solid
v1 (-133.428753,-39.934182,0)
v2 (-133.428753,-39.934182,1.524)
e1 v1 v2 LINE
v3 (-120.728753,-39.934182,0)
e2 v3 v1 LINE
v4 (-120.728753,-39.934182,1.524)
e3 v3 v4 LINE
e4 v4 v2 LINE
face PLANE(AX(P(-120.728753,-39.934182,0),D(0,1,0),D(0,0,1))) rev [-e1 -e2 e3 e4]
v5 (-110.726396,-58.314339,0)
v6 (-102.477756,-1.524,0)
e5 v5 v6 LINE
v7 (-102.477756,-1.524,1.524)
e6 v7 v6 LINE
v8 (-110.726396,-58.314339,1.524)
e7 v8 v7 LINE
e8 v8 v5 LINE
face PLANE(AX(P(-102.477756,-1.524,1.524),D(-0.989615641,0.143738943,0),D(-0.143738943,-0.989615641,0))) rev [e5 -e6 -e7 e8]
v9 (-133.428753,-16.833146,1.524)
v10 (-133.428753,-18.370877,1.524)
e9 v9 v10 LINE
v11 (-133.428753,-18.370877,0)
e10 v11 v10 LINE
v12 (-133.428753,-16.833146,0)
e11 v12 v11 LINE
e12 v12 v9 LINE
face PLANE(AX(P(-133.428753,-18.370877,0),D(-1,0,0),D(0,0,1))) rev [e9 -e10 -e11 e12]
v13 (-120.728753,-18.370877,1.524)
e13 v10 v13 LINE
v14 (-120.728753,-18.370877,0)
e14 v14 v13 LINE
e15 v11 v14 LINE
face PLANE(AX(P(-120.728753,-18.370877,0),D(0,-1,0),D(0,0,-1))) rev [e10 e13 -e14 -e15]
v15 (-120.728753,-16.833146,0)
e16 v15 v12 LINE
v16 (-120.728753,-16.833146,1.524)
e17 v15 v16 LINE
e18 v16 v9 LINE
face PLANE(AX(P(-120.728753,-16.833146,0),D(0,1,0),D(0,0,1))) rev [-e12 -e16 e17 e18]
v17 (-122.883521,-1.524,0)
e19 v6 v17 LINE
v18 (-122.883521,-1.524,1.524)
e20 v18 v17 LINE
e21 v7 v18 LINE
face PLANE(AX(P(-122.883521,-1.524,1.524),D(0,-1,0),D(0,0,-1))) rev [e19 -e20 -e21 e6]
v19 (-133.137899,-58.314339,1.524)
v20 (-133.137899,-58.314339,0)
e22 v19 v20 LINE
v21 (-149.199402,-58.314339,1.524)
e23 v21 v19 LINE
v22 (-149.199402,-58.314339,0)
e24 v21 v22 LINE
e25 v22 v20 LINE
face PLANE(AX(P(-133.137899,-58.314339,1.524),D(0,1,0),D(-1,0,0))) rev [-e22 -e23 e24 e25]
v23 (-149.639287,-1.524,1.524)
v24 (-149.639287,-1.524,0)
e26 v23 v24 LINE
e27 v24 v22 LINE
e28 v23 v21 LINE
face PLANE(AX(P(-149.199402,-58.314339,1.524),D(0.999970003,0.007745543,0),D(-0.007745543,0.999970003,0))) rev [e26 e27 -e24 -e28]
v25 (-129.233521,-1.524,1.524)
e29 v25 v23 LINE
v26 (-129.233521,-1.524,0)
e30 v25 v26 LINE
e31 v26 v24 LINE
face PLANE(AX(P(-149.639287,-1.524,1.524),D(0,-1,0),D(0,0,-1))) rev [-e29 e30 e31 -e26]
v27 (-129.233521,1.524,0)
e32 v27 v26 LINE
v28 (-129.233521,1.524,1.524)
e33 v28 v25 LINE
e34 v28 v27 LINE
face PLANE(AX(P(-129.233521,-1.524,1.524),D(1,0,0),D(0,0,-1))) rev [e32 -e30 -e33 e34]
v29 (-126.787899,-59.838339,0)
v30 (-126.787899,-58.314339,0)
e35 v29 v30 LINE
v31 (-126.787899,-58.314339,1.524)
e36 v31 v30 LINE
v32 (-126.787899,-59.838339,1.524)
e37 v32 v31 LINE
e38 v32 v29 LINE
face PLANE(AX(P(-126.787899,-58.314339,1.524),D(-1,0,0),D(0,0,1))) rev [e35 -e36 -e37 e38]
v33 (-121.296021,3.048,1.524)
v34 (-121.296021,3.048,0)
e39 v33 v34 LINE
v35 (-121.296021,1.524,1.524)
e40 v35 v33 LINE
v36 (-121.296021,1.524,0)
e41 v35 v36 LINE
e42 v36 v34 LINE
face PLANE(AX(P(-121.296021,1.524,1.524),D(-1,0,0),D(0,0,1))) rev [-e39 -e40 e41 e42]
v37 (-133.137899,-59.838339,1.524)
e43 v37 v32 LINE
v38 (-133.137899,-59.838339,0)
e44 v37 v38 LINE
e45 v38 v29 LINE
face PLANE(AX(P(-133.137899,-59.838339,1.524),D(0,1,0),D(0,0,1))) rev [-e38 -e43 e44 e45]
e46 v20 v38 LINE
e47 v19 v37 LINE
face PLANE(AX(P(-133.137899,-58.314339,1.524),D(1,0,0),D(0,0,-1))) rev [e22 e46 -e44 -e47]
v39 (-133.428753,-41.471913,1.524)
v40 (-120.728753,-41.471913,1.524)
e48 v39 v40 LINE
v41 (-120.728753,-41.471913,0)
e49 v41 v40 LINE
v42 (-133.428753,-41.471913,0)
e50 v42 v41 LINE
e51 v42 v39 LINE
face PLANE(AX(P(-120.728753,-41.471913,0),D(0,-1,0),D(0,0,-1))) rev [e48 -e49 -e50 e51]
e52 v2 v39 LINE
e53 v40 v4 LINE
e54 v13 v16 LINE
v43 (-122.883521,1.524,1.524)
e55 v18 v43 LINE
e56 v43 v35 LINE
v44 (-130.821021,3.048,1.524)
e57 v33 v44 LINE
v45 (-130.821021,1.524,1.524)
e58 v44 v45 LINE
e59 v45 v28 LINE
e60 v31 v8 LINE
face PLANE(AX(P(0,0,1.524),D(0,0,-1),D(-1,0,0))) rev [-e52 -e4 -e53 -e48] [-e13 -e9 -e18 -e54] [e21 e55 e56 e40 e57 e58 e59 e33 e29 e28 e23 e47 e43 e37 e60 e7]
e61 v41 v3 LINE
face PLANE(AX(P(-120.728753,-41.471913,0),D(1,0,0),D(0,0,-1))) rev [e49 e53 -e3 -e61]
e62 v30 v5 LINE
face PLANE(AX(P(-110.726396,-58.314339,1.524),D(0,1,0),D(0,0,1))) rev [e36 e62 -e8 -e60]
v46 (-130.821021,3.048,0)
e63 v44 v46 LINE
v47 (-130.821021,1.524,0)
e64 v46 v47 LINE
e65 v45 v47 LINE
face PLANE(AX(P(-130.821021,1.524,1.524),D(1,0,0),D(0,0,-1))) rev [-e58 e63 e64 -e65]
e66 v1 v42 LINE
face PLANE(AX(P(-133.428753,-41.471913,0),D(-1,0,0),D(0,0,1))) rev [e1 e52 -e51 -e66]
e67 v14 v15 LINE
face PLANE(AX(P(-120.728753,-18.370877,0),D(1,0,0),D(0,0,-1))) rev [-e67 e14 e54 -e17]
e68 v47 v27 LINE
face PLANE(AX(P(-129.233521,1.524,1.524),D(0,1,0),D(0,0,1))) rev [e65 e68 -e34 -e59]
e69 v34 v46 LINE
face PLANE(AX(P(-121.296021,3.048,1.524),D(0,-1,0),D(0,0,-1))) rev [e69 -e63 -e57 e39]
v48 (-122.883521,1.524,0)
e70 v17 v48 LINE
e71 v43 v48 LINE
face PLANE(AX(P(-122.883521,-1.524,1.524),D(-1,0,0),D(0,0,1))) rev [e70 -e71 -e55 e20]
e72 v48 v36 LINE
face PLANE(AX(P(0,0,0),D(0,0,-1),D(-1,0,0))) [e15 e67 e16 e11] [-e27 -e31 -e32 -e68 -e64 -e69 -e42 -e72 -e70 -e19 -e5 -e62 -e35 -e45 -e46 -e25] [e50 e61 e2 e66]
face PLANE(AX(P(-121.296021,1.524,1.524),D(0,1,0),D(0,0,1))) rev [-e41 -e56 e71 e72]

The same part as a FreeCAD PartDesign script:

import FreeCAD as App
import Part
import Sketcher
Q = App.Units.Quantity


def add_polygon(sketch, points):
    """Adds a closed chain of lines whose ends are joined by coincident constraints."""
    first, n = sketch.GeometryCount, len(points)
    for a, b in zip(points, points[1:] + points[:1]):
        sketch.addGeometry(Part.LineSegment(App.Vector(*a, 0), App.Vector(*b, 0)), False)
    for i in range(n):
        sketch.addConstraint(Sketcher.Constraint("Coincident", first + i, 2, first + (i + 1) % n, 1))

doc = App.newDocument("Part")
params = doc.addObject("Spreadsheet::Sheet", "Params")
for row, (alias, value) in enumerate([
    ("sketch1_width", "0.25 in"),
    ("sketch1_height", "0.12 in"),
    ("sketch1_height2", "0.06 in"),
    ("sketch1_width2", "0.0625 in"),
    ("sketch1_width3", "0.375 in"),
    ("pad1_length", "0.06 in"),
    ("sketch2_width", "0.5 in"),
    ("pocket1_length", "0.06 in"),
], start=1):
    params.set(f"A{row}", alias)
    params.set(f"B{row}", "=" + value)
    params.setAlias(f"B{row}", alias)

body = doc.addObject("PartDesign::Body", "Body")

sketch1 = body.newObject("Sketcher::SketchObject", "Sketch")
sketch1.AttachmentSupport = (doc.getObject("XY_Plane"), [""])
sketch1.MapMode = "FlatFace"
add_polygon(sketch1, [(-110.7, -58.3), (-102.5, -1.5), (-122.9, -1.5), (-122.9, 1.5), (-121.3, 1.5), (-121.3, 3), (-130.8, 3), (-130.8, 1.5), (-129.2, 1.5), (-129.2, -1.5), (-149.6, -1.5), (-149.2, -58.3), (-133.1, -58.3), (-133.1, -59.8), (-126.8, -59.8), (-126.8, -58.3)])
sketch1.addConstraint([
    Sketcher.Constraint("Horizontal", 1),
    Sketcher.Constraint("Vertical", 2),
    Sketcher.Constraint("Horizontal", 3),
    Sketcher.Constraint("Vertical", 4),
    Sketcher.Constraint("Horizontal", 5),
    Sketcher.Constraint("Vertical", 6),
    Sketcher.Constraint("Horizontal", 7),
    Sketcher.Constraint("Vertical", 8),
    Sketcher.Constraint("Horizontal", 9),
    Sketcher.Constraint("Horizontal", 11),
    Sketcher.Constraint("Vertical", 12),
    Sketcher.Constraint("Horizontal", 13),
    Sketcher.Constraint("Vertical", 14),
    Sketcher.Constraint("Horizontal", 15),
    Sketcher.Constraint("Horizontal", 3, 2, 6, 2),
    Sketcher.Constraint("Horizontal", 1, 2, 8, 2),
    Sketcher.Constraint("Horizontal", 11, 2, 14, 2),
    Sketcher.Constraint("Equal", 3, 7),
    Sketcher.Constraint("Equal", 1, 9),
    Sketcher.Constraint("Equal", 11, 15),
    Sketcher.Constraint("Equal", 6, 12),
    Sketcher.Constraint("DistanceX", 13, 1, 13, 2, Q("0.25 in")),
    Sketcher.Constraint("DistanceY", 2, 1, 2, 2, Q("0.12 in")),
    Sketcher.Constraint("DistanceY", 4, 1, 4, 2, Q("0.06 in")),
    Sketcher.Constraint("DistanceX", 3, 1, 3, 2, Q("0.0625 in")),
    Sketcher.Constraint("DistanceX", 5, 2, 5, 1, Q("0.375 in")),
    Sketcher.Constraint("DistanceY", 0, 2, -1, 1, Q("0.06 in")),
    Sketcher.Constraint("DistanceX", 10, 2, -1, 1, 149.199402),
    Sketcher.Constraint("DistanceX", 11, 2, -1, 1, 133.137899),
    Sketcher.Constraint("Distance", 0, 57.386258),
    Sketcher.Constraint("DistanceX", 1, 2, 1, 1, 20.405766),
    Sketcher.Constraint("DistanceX", 1, 2, -1, 1, 122.883521),
])
sketch1.setExpression("Constraints[37]", "Params.sketch1_width")
sketch1.setExpression("Constraints[38]", "Params.sketch1_height")
sketch1.setExpression("Constraints[39]", "Params.sketch1_height2")
sketch1.setExpression("Constraints[40]", "Params.sketch1_width2")
sketch1.setExpression("Constraints[41]", "Params.sketch1_width3")
pad1 = body.newObject("PartDesign::Pad", "Pad")
pad1.Profile = sketch1
pad1.setExpression("Length", "Params.pad1_length")

sketch2 = body.newObject("Sketcher::SketchObject", "Sketch001")
sketch2.AttachmentSupport = (doc.getObject("XY_Plane"), [""])
sketch2.MapMode = "FlatFace"
sketch2.AttachmentOffset = App.Placement(App.Vector(0, 0, 0.06 * 25.4), App.Rotation())
add_polygon(sketch2, [(-133.4, -16.8), (-133.4, -18.4), (-120.7, -18.4), (-120.7, -16.8)])
add_polygon(sketch2, [(-133.4, -39.9), (-133.4, -41.5), (-120.7, -41.5), (-120.7, -39.9)])
sketch2.addConstraint([
    Sketcher.Constraint("Vertical", 0),
    Sketcher.Constraint("Horizontal", 1),
    Sketcher.Constraint("Vertical", 2),
    Sketcher.Constraint("Horizontal", 3),
    Sketcher.Constraint("Vertical", 4),
    Sketcher.Constraint("Horizontal", 5),
    Sketcher.Constraint("Vertical", 6),
    Sketcher.Constraint("Horizontal", 7),
    Sketcher.Constraint("Vertical", 3, 2, 4, 2),
    Sketcher.Constraint("Vertical", 2, 2, 5, 2),
    Sketcher.Constraint("Equal", 2, 4),
    Sketcher.Constraint("DistanceX", 1, 1, 1, 2, Q("0.5 in")),
    Sketcher.Constraint("DistanceY", 0, 2, 0, 1, 1.53773),
    Sketcher.Constraint("DistanceX", 0, 2, -1, 1, 133.428753),
    Sketcher.Constraint("DistanceY", 0, 2, -1, 1, 18.370877),
    Sketcher.Constraint("DistanceY", 4, 2, -1, 1, 41.471913),
])
sketch2.setExpression("Constraints[19]", "Params.sketch2_width")
pocket1 = body.newObject("PartDesign::Pocket", "Pocket")
pocket1.Profile = sketch2
pocket1.setExpression("Length", "Params.pocket1_length")

doc.recompute()
